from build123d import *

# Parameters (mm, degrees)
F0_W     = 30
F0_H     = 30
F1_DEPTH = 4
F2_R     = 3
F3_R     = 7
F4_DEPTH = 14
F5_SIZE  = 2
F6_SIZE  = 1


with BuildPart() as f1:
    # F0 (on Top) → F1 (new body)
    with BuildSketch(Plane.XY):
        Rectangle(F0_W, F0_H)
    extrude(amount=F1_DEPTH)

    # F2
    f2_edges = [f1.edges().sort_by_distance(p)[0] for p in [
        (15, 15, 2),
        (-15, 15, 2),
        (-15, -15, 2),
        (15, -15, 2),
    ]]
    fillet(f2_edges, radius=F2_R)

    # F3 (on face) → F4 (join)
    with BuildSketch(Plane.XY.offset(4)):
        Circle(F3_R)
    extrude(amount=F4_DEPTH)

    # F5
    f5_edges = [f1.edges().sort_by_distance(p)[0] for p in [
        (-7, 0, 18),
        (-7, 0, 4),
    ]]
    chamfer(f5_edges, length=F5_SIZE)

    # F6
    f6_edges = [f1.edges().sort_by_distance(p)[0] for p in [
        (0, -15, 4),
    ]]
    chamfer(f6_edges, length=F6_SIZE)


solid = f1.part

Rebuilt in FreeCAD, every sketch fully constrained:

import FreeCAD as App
import Part
import Sketcher

V = App.Vector


def edges_at(feature, points):
    """Names of the edges that pass closest to the given points."""
    edges = feature.Shape.Edges
    near = lambda p: min(range(len(edges)), key=lambda i: edges[i].distToShape(Part.Vertex(*p))[0])
    return sorted({f"Edge{near(p) + 1}" for p in points})

doc = App.newDocument("Part")
body = doc.addObject("PartDesign::Body", "Body")

sketch1 = body.newObject("Sketcher::SketchObject", "Sketch")
sketch1.AttachmentSupport = (doc.getObject("XY_Plane"), [""])
sketch1.MapMode = "FlatFace"
sketch1.addGeometry([
    Part.LineSegment(V(-15, 15, 0), V(-15, -15, 0)),
    Part.LineSegment(V(-15, -15, 0), V(15, -15, 0)),
    Part.LineSegment(V(15, -15, 0), V(15, 15, 0)),
    Part.LineSegment(V(15, 15, 0), V(-15, 15, 0)),
], False)
sketch1.addConstraint([
    Sketcher.Constraint("Coincident", 0, 2, 1, 1),
    Sketcher.Constraint("Coincident", 1, 2, 2, 1),
    Sketcher.Constraint("Coincident", 2, 2, 3, 1),
    Sketcher.Constraint("Coincident", 3, 2, 0, 1),
    Sketcher.Constraint("Vertical", 0),
    Sketcher.Constraint("Horizontal", 1),
    Sketcher.Constraint("Vertical", 2),
    Sketcher.Constraint("Horizontal", 3),
    Sketcher.Constraint("Symmetric", 0, 2, 2, 2, -1, 1),
    Sketcher.Constraint("Equal", 3, 0),
    Sketcher.Constraint("DistanceX", 1, 1, 1, 2, 30.0),
])
pad1 = body.newObject("PartDesign::Pad", "Pad")
pad1.Profile = sketch1
pad1.Length = 4
doc.recompute()

fillet = body.newObject("PartDesign::Fillet", "Fillet")
fillet.Base = (pad1, edges_at(pad1, [
    (15, 15, 2),
    (-15, 15, 2),
    (-15, -15, 2),
    (15, -15, 2),
]))
fillet.Radius = 3

sketch2 = body.newObject("Sketcher::SketchObject", "Sketch001")
sketch2.AttachmentSupport = (doc.getObject("XY_Plane"), [""])
sketch2.MapMode = "FlatFace"
sketch2.AttachmentOffset = App.Placement(V(0, 0, 4), App.Rotation())
sketch2.addGeometry(Part.Circle(V(0, 0, 0), V(0, 0, 1), 7), False)
sketch2.addConstraint([
    Sketcher.Constraint("Coincident", 0, 3, -1, 1),
    Sketcher.Constraint("Diameter", 0, 14.0),
])
pad2 = body.newObject("PartDesign::Pad", "Pad001")
pad2.Profile = sketch2
pad2.Length = 14
doc.recompute()

chamfer = body.newObject("PartDesign::Chamfer", "Chamfer")
chamfer.Base = (pad2, edges_at(pad2, [(-7, 0, 18), (-7, 0, 4)]))
chamfer.Size = 2
doc.recompute()

chamfer2 = body.newObject("PartDesign::Chamfer", "Chamfer001")
chamfer2.Base = (chamfer, edges_at(chamfer, [(0, -15, 4)]))
chamfer2.Size = 1

doc.recompute()
